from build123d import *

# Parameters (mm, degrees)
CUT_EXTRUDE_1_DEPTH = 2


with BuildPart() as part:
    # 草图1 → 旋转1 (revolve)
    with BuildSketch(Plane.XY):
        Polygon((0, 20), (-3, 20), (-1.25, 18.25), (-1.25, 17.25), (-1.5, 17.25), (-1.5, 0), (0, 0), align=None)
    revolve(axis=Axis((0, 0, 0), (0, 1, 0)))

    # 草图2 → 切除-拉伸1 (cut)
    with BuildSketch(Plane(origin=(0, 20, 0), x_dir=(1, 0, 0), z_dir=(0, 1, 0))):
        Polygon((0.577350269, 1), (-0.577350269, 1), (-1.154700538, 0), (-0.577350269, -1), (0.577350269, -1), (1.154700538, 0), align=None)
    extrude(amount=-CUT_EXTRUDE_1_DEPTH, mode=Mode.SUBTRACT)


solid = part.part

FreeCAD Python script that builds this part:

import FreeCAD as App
import Part
import Sketcher
Q = App.Units.Quantity


def add_polygon(sketch, points):
    """Adds a closed chain of lines whose ends are joined by coincident constraints."""
    first, n = sketch.GeometryCount, len(points)
    for a, b in zip(points, points[1:] + points[:1]):
        sketch.addGeometry(Part.LineSegment(App.Vector(*a, 0), App.Vector(*b, 0)), False)
    for i in range(n):
        sketch.addConstraint(Sketcher.Constraint("Coincident", first + i, 2, first + (i + 1) % n, 1))

doc = App.newDocument("Part")
body = doc.addObject("PartDesign::Body", "Body")

sketch1 = body.newObject("Sketcher::SketchObject", "Sketch")
sketch1.AttachmentSupport = (doc.getObject("XY_Plane"), [""])
sketch1.MapMode = "FlatFace"
add_polygon(sketch1, [(0, 20), (-3, 20), (-1.25, 18.25), (-1.25, 17.25), (-1.5, 17.25), (-1.5, 0), (0, 0)])
sketch1.addConstraint([
    Sketcher.Constraint("Horizontal", 0),
    Sketcher.Constraint("Vertical", 2),
    Sketcher.Constraint("Horizontal", 3),
    Sketcher.Constraint("Vertical", 4),
    Sketcher.Constraint("Horizontal", 5),
    Sketcher.Constraint("Vertical", 6),
    Sketcher.Constraint("Coincident", 5, 2, -1, 1),
    Sketcher.Constraint("DistanceX", 0, 2, 0, 1, 3.0),
    Sketcher.Constraint("DistanceY", 2, 2, 2, 1, 1.0),
    Sketcher.Constraint("DistanceY", 6, 1, 6, 2, 20.0),
    Sketcher.Constraint("Angle", 1, Q("-45 deg")),
    Sketcher.Constraint("DistanceX", 5, 1, 5, 2, 1.5),
    Sketcher.Constraint("DistanceX", 3, 2, 3, 1, 0.25),
])
revolution = body.newObject("PartDesign::Revolution", "Revolution")
revolution.Profile = sketch1
revolution.ReferenceAxis = (sketch1, ["V_Axis"])
revolution.Angle = 360

sketch2 = body.newObject("Sketcher::SketchObject", "Sketch001")
sketch2.AttachmentSupport = (doc.getObject("XZ_Plane"), [""])
sketch2.MapMode = "FlatFace"
sketch2.AttachmentOffset = App.Placement(App.Vector(0, 0, -20), App.Rotation())
add_polygon(sketch2, [(0.57735, -1), (-0.57735, -1), (-1.154701, 0), (-0.57735, 1), (0.57735, 1), (1.154701, 0)])
sketch2.addConstraint([
    Sketcher.Constraint("Horizontal", 0),
    Sketcher.Constraint("Horizontal", 3),
    Sketcher.Constraint("Symmetric", 0, 2, 3, 2, -1, 1),
    Sketcher.Constraint("Symmetric", 1, 2, 4, 2, -1, 1),
    Sketcher.Constraint("PointOnObject", 1, 2, -1),
    Sketcher.Constraint("Parallel", 2, 5),
    Sketcher.Constraint("Vertical", 0, 2, 2, 2),
    Sketcher.Constraint("Angle", 1, Q("120 deg")),
    Sketcher.Constraint("DistanceY", 0, 2, -1, 1, 1.0),
    Sketcher.Constraint("DistanceX", 0, 2, 0, 1, 1.154701),
])
pocket1 = body.newObject("PartDesign::Pocket", "Pocket")
pocket1.Profile = sketch2
pocket1.Length = 2
pocket1.Reversed = True

doc.recompute()
